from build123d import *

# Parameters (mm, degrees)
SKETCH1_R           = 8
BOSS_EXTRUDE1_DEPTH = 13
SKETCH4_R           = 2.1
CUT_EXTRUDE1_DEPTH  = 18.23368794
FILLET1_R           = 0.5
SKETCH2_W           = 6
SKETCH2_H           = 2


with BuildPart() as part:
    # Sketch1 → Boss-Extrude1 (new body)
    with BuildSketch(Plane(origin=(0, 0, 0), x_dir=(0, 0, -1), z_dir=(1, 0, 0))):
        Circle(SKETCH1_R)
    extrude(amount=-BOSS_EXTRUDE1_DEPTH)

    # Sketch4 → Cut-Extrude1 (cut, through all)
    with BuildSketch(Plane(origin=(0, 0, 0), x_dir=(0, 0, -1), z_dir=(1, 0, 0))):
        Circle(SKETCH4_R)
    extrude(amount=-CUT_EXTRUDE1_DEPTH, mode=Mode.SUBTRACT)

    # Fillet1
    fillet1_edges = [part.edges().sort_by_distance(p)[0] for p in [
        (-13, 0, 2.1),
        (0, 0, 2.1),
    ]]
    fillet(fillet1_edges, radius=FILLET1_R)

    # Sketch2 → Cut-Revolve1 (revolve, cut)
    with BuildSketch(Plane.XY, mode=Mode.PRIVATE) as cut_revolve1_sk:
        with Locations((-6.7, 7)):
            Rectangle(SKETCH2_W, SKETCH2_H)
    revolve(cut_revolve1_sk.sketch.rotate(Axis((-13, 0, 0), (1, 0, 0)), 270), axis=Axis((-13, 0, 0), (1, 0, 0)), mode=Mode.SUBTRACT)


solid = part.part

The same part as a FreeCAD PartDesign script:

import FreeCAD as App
import Part
import Sketcher
from FreeCAD import Vector
Q = App.Units.Quantity


def edges_at(feature, points):
    """Names of the edges that pass closest to the given points."""
    edges = feature.Shape.Edges
    near = lambda p: min(range(len(edges)), key=lambda i: edges[i].distToShape(Part.Vertex(*p))[0])
    return sorted({f"Edge{near(p) + 1}" for p in points})

doc = App.newDocument("Part")
body = doc.addObject("PartDesign::Body", "Body")

# Sketch on YZ plane
sketch1 = body.newObject("Sketcher::SketchObject", "Sketch")
sketch1.AttachmentSupport = (doc.getObject("YZ_Plane"), [""])
sketch1.MapMode = "FlatFace"
sketch1.addGeometry(Part.Circle(Vector(0, 0, 0), Vector(0, 0, 1), 8), False)
sketch1.addConstraint([
    Sketcher.Constraint("Coincident", 0, 3, -1, 1),
    Sketcher.Constraint("Diameter", 0, Q("16 mm")),
])
pad1 = body.newObject("PartDesign::Pad", "Pad")
pad1.Profile = sketch1
pad1.Length = 13
pad1.Reversed = True

# Sketch on YZ plane
sketch2 = body.newObject("Sketcher::SketchObject", "Sketch001")
sketch2.AttachmentSupport = (doc.getObject("YZ_Plane"), [""])
sketch2.MapMode = "FlatFace"
sketch2.addGeometry(Part.Circle(Vector(0, 0, 0), Vector(0, 0, 1), 2.1), False)
sketch2.addConstraint([
    Sketcher.Constraint("Coincident", 0, 3, -1, 1),
    Sketcher.Constraint("Diameter", 0, Q("4.2 mm")),
])
pocket1 = body.newObject("PartDesign::Pocket", "Pocket")
pocket1.Profile = sketch2
pocket1.Type = "ThroughAll"
doc.recompute()

fillet = body.newObject("PartDesign::Fillet", "Fillet")
fillet.Base = (pocket1, edges_at(pocket1, [(-13, 0, 2.1), (0, 0, 2.1)]))
fillet.Radius = 0.5

# Sketch on XY plane
sketch3 = body.newObject("Sketcher::SketchObject", "Sketch002")
sketch3.AttachmentSupport = (doc.getObject("XY_Plane"), [""])
sketch3.MapMode = "FlatFace"
sketch3.addGeometry([
    Part.LineSegment(Vector(-9.7, 8, 0), Vector(-9.7, 6, 0)),
    Part.LineSegment(Vector(-9.7, 6, 0), Vector(-3.7, 6, 0)),
    Part.LineSegment(Vector(-3.7, 6, 0), Vector(-3.7, 8, 0)),
    Part.LineSegment(Vector(-3.7, 8, 0), Vector(-9.7, 8, 0)),
], False)
sketch3.addConstraint([
    Sketcher.Constraint("Coincident", 0, 2, 1, 1),
    Sketcher.Constraint("Coincident", 1, 2, 2, 1),
    Sketcher.Constraint("Coincident", 2, 2, 3, 1),
    Sketcher.Constraint("Coincident", 3, 2, 0, 1),
    Sketcher.Constraint("Vertical", 0),
    Sketcher.Constraint("Horizontal", 1),
    Sketcher.Constraint("Vertical", 2),
    Sketcher.Constraint("Horizontal", 3),
    Sketcher.Constraint("DistanceX", 1, 1, 1, 2, Q("6 mm")),
    Sketcher.Constraint("DistanceY", 0, 2, 0, 1, Q("2 mm")),
    Sketcher.Constraint("DistanceY", -1, 1, 0, 2, Q("6 mm")),
    Sketcher.Constraint("DistanceX", 0, 2, -1, 1, Q("9.7 mm")),
])
groove = body.newObject("PartDesign::Groove", "Groove")
groove.Profile = sketch3
groove.ReferenceAxis = (sketch3, ["H_Axis"])
groove.Angle = 360

doc.recompute()
